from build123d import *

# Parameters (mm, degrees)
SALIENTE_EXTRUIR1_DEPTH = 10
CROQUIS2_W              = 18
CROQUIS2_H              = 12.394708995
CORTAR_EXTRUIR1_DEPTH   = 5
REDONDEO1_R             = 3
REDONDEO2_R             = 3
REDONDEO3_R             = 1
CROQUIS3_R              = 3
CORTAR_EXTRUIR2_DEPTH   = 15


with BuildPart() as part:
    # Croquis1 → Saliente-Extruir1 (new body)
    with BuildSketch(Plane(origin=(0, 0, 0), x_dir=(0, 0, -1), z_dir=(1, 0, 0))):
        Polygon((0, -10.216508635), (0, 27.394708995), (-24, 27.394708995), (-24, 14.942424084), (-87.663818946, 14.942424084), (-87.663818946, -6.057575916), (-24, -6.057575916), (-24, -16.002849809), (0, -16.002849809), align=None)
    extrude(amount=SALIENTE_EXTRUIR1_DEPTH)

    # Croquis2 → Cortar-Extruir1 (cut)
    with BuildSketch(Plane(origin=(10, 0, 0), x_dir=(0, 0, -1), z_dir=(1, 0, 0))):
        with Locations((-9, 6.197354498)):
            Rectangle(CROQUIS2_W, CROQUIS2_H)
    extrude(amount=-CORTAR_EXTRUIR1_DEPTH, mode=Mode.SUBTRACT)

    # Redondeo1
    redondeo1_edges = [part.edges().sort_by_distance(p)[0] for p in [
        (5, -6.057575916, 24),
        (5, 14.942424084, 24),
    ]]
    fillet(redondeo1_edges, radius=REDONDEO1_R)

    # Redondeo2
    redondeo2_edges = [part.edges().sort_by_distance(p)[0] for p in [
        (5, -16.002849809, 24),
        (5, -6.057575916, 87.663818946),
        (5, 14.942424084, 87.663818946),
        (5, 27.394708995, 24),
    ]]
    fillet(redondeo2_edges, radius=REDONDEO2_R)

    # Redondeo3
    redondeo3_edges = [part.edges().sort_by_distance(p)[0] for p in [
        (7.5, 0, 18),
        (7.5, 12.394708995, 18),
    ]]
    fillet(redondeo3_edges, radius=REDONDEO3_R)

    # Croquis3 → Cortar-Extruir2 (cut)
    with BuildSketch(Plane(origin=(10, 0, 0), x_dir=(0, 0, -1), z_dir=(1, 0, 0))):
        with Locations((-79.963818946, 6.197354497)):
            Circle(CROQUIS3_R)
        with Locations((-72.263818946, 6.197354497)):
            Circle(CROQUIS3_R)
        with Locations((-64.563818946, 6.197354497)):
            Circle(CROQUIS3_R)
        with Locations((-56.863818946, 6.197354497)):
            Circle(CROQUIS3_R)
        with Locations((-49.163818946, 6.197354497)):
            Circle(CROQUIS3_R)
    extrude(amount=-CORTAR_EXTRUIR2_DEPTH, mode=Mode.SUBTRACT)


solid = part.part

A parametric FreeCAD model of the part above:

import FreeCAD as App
import Part
import Sketcher

V = App.Vector
Q = App.Units.Quantity


def edges_at(feature, points):
    """Names of the edges that pass closest to the given points."""
    edges = feature.Shape.Edges
    near = lambda p: min(range(len(edges)), key=lambda i: edges[i].distToShape(Part.Vertex(*p))[0])
    return sorted({f"Edge{near(p) + 1}" for p in points})


def add_polygon(sketch, points):
    """Adds a closed chain of lines whose ends are joined by coincident constraints."""
    first, n = sketch.GeometryCount, len(points)
    for a, b in zip(points, points[1:] + points[:1]):
        sketch.addGeometry(Part.LineSegment(App.Vector(*a, 0), App.Vector(*b, 0)), False)
    for i in range(n):
        sketch.addConstraint(Sketcher.Constraint("Coincident", first + i, 2, first + (i + 1) % n, 1))

doc = App.newDocument("Part")
body = doc.addObject("PartDesign::Body", "Body")

# Sketch on YZ plane
sketch1 = body.newObject("Sketcher::SketchObject", "Sketch")
sketch1.AttachmentSupport = (doc.getObject("YZ_Plane"), [""])
sketch1.MapMode = "FlatFace"
add_polygon(sketch1, [(27, 0), (27, 24), (15, 24), (15, 88), (-6, 88), (-6, 24), (-16, 24), (-16, 0)])  # lines 0-7
sketch1.addConstraint([
    Sketcher.Constraint("Vertical", 0),
    Sketcher.Constraint("Horizontal", 1),
    Sketcher.Constraint("Vertical", 2),
    Sketcher.Constraint("Horizontal", 3),
    Sketcher.Constraint("Vertical", 4),
    Sketcher.Constraint("Horizontal", 5),
    Sketcher.Constraint("Vertical", 6),
    Sketcher.Constraint("Horizontal", 7),
    Sketcher.Constraint("PointOnObject", 6, 2, -1),
    Sketcher.Constraint("Horizontal", 1, 2, 4, 2),
    Sketcher.Constraint("DistanceX", 3, 2, 3, 1, Q("21 mm")),
    Sketcher.Constraint("DistanceY", 0, 1, 0, 2, Q("24 mm")),
    Sketcher.Constraint("DistanceX", 7, 1, 7, 2, Q("43.397559 mm")),
    Sketcher.Constraint("DistanceY", 2, 1, 2, 2, Q("63.663819 mm")),
    Sketcher.Constraint("DistanceX", 1, 2, 1, 1, Q("12.452285 mm")),
    Sketcher.Constraint("DistanceX", -1, 1, 0, 2, Q("27.394709 mm")),
])
pad1 = body.newObject("PartDesign::Pad", "Pad")
pad1.Profile = sketch1
pad1.Length = 10

# Sketch on YZ plane
sketch2 = body.newObject("Sketcher::SketchObject", "Sketch001")
sketch2.AttachmentSupport = (doc.getObject("YZ_Plane"), [""])
sketch2.MapMode = "FlatFace"
sketch2.AttachmentOffset = App.Placement(V(0, 0, 10), App.Rotation())
add_polygon(sketch2, [(12, 18), (0, 18), (0, 0), (12, 0)])  # lines 0-3
sketch2.addConstraint([
    Sketcher.Constraint("Horizontal", 0),
    Sketcher.Constraint("Vertical", 1),
    Sketcher.Constraint("Horizontal", 2),
    Sketcher.Constraint("Vertical", 3),
    Sketcher.Constraint("Coincident", 1, 2, -1, 1),
    Sketcher.Constraint("DistanceY", 1, 2, 1, 1, Q("18 mm")),
    Sketcher.Constraint("DistanceX", 0, 2, 0, 1, Q("12.394709 mm")),
])
pocket1 = body.newObject("PartDesign::Pocket", "Pocket")
pocket1.Profile = sketch2
pocket1.Length = 5
doc.recompute()

fillet = body.newObject("PartDesign::Fillet", "Fillet")
fillet.Base = (pocket1, edges_at(pocket1, [(5, -6.058, 24), (5, 14.942, 24)]))
fillet.Radius = 3
doc.recompute()

fillet2 = body.newObject("PartDesign::Fillet", "Fillet001")
fillet2.Base = (fillet, edges_at(fillet, [
    (5, -16.003, 24),
    (5, -6.058, 87.664),
    (5, 14.942, 87.664),
    (5, 27.395, 24),
]))
fillet2.Radius = 3
doc.recompute()

fillet3 = body.newObject("PartDesign::Fillet", "Fillet002")
fillet3.Base = (fillet2, edges_at(fillet2, [(7.5, 0, 18), (7.5, 12.395, 18)]))
fillet3.Radius = 1

# Sketch on YZ plane
sketch3 = body.newObject("Sketcher::SketchObject", "Sketch002")
sketch3.AttachmentSupport = (doc.getObject("YZ_Plane"), [""])
sketch3.MapMode = "FlatFace"
sketch3.AttachmentOffset = App.Placement(V(0, 0, 10), App.Rotation())
sketch3.addGeometry([
    Part.Circle(V(6.2, 80, 0), V(0, 0, 1), 3),  # 0
    Part.Circle(V(6.2, 72.3, 0), V(0, 0, 1), 3),  # 1
    Part.Circle(V(6.2, 64.6, 0), V(0, 0, 1), 3),  # 2
    Part.Circle(V(6.2, 56.9, 0), V(0, 0, 1), 3),  # 3
    Part.Circle(V(6.2, 49.2, 0), V(0, 0, 1), 3),  # 4
], False)
sketch3.addConstraint([
    Sketcher.Constraint("Equal", 0, 1),
    Sketcher.Constraint("Equal", 1, 2),
    Sketcher.Constraint("Equal", 2, 3),
    Sketcher.Constraint("Equal", 3, 4),
    Sketcher.Constraint("Vertical", 0, 3, 1, 3),
    Sketcher.Constraint("Vertical", 1, 3, 2, 3),
    Sketcher.Constraint("Vertical", 2, 3, 3, 3),
    Sketcher.Constraint("Vertical", 3, 3, 4, 3),
    Sketcher.Constraint("Diameter", 0, Q("6 mm")),
    Sketcher.Constraint("DistanceY", 1, 3, 0, 3, Q("7.7 mm")),
    Sketcher.Constraint("DistanceY", 2, 3, 1, 3, Q("7.7 mm")),
    Sketcher.Constraint("DistanceY", 3, 3, 2, 3, Q("7.7 mm")),
    Sketcher.Constraint("DistanceY", 4, 3, 3, 3, Q("7.7 mm")),
    Sketcher.Constraint("DistanceY", -1, 1, 0, 3, Q("79.963819 mm")),
    Sketcher.Constraint("DistanceX", -1, 1, 0, 3, Q("6.197354 mm")),
])
pocket2 = body.newObject("PartDesign::Pocket", "Pocket001")
pocket2.Profile = sketch3
pocket2.Length = 15

doc.recompute()
